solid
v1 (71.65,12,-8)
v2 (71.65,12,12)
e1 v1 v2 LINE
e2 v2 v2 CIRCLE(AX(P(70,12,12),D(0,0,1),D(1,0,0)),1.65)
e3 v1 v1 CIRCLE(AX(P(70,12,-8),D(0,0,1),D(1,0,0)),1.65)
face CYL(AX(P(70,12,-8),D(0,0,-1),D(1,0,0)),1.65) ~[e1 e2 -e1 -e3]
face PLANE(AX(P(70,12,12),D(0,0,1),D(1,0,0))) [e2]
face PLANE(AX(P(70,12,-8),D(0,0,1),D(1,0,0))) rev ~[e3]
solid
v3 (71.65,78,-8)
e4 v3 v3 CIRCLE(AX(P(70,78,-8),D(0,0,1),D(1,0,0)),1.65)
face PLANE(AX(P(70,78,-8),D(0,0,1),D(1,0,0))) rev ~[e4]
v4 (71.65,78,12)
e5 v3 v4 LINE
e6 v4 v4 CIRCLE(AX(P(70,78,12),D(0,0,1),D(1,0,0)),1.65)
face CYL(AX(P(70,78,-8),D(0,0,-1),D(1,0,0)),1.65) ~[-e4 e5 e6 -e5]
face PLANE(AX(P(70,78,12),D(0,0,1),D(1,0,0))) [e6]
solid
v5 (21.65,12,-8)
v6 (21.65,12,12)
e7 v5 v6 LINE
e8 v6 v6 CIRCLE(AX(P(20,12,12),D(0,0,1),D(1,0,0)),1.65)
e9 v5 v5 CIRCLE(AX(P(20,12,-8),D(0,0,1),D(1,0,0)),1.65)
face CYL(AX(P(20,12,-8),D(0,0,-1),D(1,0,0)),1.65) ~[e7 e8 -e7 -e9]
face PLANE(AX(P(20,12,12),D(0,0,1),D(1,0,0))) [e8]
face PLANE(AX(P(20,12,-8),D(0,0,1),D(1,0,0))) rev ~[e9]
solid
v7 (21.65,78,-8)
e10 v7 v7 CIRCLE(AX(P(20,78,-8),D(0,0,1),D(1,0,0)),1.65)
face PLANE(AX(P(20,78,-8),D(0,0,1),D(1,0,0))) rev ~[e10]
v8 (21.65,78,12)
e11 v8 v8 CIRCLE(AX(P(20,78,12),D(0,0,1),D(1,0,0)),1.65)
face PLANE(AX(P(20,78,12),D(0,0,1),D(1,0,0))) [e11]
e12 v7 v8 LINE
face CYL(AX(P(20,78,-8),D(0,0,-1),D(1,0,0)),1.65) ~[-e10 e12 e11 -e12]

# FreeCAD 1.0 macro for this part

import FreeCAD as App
import Part
import Sketcher

V = App.Vector

doc = App.newDocument("Part")
body = doc.addObject("PartDesign::Body", "Body")

sketch1 = doc.addObject("Sketcher::SketchObject", "Sketch")
body.addObject(sketch1)
sketch1.AttachmentSupport = (doc.XY_Plane, [""])
sketch1.MapMode = "FlatFace"
sketch1.AttachmentOffset = App.Placement(V(0, 0, -8), App.Rotation())
sketch1.addGeometry(Part.Circle(V(70, 12, 0), V(0, 0, 1), 1.6), False)
sketch1.addConstraint([
    Sketcher.Constraint("Diameter", 0, 3.3),
    Sketcher.Constraint("DistanceX", -1, 1, 0, 3, 70.0),
    Sketcher.Constraint("DistanceY", -1, 1, 0, 3, 12.0),
])
pad1 = doc.addObject("PartDesign::Pad", "Pad")
body.addObject(pad1)
pad1.Profile = sketch1
pad1.Length = 20
body2 = doc.addObject("PartDesign::Body", "Body001")

sketch2 = doc.addObject("Sketcher::SketchObject", "Sketch001")
body2.addObject(sketch2)
sketch2.AttachmentSupport = (doc.getObject("XY_Plane001"), [""])
sketch2.MapMode = "FlatFace"
sketch2.AttachmentOffset = App.Placement(V(0, 0, -8), App.Rotation())
sketch2.addGeometry(Part.Circle(V(70, 78, 0), V(0, 0, 1), 1.6), False)
sketch2.addConstraint([
    Sketcher.Constraint("Diameter", 0, 3.3),
    Sketcher.Constraint("DistanceX", -1, 1, 0, 3, 70.0),
    Sketcher.Constraint("DistanceY", -1, 1, 0, 3, 78.0),
])
pad2 = doc.addObject("PartDesign::Pad", "Pad001")
body2.addObject(pad2)
pad2.Profile = sketch2
pad2.Length = 20
body3 = doc.addObject("PartDesign::Body", "Body002")

sketch3 = doc.addObject("Sketcher::SketchObject", "Sketch002")
body3.addObject(sketch3)
sketch3.AttachmentSupport = (doc.getObject("XY_Plane002"), [""])
sketch3.MapMode = "FlatFace"
sketch3.AttachmentOffset = App.Placement(V(0, 0, -8), App.Rotation())
sketch3.addGeometry(Part.Circle(V(20, 78, 0), V(0, 0, 1), 1.6), False)
sketch3.addConstraint([
    Sketcher.Constraint("Diameter", 0, 3.3),
    Sketcher.Constraint("DistanceX", -1, 1, 0, 3, 20.0),
    Sketcher.Constraint("DistanceY", -1, 1, 0, 3, 78.0),
])
pad3 = doc.addObject("PartDesign::Pad", "Pad002")
body3.addObject(pad3)
pad3.Profile = sketch3
pad3.Length = 20
body4 = doc.addObject("PartDesign::Body", "Body003")
body4.AllowCompound = True

sketch4 = doc.addObject("Sketcher::SketchObject", "Sketch003")
body4.addObject(sketch4)
sketch4.AttachmentSupport = (doc.getObject("XY_Plane003"), [""])
sketch4.MapMode = "FlatFace"
sketch4.AttachmentOffset = App.Placement(V(0, 0, -8), App.Rotation())
sketch4.addGeometry(Part.Circle(V(20, 12, 0), V(0, 0, 1), 1.6), False)
sketch4.addConstraint([
    Sketcher.Constraint("Diameter", 0, 3.3),
    Sketcher.Constraint("DistanceX", -1, 1, 0, 3, 20.0),
    Sketcher.Constraint("DistanceY", -1, 1, 0, 3, 12.0),
])
pad4 = doc.addObject("PartDesign::Pad", "Pad003")
body4.addObject(pad4)
pad4.Profile = sketch4
pad4.Length = 20
doc.recompute()

boolean = doc.addObject("PartDesign::Boolean", "Boolean")
body4.addObject(boolean)
boolean.Type = "Fuse"
boolean.addObjects([body])
doc.recompute()

boolean2 = doc.addObject("PartDesign::Boolean", "Boolean001")
body4.addObject(boolean2)
boolean2.Type = "Fuse"
boolean2.addObjects([body2])
doc.recompute()

boolean3 = doc.addObject("PartDesign::Boolean", "Boolean002")
body4.addObject(boolean3)
boolean3.Type = "Fuse"
boolean3.addObjects([body3])

doc.recompute()
